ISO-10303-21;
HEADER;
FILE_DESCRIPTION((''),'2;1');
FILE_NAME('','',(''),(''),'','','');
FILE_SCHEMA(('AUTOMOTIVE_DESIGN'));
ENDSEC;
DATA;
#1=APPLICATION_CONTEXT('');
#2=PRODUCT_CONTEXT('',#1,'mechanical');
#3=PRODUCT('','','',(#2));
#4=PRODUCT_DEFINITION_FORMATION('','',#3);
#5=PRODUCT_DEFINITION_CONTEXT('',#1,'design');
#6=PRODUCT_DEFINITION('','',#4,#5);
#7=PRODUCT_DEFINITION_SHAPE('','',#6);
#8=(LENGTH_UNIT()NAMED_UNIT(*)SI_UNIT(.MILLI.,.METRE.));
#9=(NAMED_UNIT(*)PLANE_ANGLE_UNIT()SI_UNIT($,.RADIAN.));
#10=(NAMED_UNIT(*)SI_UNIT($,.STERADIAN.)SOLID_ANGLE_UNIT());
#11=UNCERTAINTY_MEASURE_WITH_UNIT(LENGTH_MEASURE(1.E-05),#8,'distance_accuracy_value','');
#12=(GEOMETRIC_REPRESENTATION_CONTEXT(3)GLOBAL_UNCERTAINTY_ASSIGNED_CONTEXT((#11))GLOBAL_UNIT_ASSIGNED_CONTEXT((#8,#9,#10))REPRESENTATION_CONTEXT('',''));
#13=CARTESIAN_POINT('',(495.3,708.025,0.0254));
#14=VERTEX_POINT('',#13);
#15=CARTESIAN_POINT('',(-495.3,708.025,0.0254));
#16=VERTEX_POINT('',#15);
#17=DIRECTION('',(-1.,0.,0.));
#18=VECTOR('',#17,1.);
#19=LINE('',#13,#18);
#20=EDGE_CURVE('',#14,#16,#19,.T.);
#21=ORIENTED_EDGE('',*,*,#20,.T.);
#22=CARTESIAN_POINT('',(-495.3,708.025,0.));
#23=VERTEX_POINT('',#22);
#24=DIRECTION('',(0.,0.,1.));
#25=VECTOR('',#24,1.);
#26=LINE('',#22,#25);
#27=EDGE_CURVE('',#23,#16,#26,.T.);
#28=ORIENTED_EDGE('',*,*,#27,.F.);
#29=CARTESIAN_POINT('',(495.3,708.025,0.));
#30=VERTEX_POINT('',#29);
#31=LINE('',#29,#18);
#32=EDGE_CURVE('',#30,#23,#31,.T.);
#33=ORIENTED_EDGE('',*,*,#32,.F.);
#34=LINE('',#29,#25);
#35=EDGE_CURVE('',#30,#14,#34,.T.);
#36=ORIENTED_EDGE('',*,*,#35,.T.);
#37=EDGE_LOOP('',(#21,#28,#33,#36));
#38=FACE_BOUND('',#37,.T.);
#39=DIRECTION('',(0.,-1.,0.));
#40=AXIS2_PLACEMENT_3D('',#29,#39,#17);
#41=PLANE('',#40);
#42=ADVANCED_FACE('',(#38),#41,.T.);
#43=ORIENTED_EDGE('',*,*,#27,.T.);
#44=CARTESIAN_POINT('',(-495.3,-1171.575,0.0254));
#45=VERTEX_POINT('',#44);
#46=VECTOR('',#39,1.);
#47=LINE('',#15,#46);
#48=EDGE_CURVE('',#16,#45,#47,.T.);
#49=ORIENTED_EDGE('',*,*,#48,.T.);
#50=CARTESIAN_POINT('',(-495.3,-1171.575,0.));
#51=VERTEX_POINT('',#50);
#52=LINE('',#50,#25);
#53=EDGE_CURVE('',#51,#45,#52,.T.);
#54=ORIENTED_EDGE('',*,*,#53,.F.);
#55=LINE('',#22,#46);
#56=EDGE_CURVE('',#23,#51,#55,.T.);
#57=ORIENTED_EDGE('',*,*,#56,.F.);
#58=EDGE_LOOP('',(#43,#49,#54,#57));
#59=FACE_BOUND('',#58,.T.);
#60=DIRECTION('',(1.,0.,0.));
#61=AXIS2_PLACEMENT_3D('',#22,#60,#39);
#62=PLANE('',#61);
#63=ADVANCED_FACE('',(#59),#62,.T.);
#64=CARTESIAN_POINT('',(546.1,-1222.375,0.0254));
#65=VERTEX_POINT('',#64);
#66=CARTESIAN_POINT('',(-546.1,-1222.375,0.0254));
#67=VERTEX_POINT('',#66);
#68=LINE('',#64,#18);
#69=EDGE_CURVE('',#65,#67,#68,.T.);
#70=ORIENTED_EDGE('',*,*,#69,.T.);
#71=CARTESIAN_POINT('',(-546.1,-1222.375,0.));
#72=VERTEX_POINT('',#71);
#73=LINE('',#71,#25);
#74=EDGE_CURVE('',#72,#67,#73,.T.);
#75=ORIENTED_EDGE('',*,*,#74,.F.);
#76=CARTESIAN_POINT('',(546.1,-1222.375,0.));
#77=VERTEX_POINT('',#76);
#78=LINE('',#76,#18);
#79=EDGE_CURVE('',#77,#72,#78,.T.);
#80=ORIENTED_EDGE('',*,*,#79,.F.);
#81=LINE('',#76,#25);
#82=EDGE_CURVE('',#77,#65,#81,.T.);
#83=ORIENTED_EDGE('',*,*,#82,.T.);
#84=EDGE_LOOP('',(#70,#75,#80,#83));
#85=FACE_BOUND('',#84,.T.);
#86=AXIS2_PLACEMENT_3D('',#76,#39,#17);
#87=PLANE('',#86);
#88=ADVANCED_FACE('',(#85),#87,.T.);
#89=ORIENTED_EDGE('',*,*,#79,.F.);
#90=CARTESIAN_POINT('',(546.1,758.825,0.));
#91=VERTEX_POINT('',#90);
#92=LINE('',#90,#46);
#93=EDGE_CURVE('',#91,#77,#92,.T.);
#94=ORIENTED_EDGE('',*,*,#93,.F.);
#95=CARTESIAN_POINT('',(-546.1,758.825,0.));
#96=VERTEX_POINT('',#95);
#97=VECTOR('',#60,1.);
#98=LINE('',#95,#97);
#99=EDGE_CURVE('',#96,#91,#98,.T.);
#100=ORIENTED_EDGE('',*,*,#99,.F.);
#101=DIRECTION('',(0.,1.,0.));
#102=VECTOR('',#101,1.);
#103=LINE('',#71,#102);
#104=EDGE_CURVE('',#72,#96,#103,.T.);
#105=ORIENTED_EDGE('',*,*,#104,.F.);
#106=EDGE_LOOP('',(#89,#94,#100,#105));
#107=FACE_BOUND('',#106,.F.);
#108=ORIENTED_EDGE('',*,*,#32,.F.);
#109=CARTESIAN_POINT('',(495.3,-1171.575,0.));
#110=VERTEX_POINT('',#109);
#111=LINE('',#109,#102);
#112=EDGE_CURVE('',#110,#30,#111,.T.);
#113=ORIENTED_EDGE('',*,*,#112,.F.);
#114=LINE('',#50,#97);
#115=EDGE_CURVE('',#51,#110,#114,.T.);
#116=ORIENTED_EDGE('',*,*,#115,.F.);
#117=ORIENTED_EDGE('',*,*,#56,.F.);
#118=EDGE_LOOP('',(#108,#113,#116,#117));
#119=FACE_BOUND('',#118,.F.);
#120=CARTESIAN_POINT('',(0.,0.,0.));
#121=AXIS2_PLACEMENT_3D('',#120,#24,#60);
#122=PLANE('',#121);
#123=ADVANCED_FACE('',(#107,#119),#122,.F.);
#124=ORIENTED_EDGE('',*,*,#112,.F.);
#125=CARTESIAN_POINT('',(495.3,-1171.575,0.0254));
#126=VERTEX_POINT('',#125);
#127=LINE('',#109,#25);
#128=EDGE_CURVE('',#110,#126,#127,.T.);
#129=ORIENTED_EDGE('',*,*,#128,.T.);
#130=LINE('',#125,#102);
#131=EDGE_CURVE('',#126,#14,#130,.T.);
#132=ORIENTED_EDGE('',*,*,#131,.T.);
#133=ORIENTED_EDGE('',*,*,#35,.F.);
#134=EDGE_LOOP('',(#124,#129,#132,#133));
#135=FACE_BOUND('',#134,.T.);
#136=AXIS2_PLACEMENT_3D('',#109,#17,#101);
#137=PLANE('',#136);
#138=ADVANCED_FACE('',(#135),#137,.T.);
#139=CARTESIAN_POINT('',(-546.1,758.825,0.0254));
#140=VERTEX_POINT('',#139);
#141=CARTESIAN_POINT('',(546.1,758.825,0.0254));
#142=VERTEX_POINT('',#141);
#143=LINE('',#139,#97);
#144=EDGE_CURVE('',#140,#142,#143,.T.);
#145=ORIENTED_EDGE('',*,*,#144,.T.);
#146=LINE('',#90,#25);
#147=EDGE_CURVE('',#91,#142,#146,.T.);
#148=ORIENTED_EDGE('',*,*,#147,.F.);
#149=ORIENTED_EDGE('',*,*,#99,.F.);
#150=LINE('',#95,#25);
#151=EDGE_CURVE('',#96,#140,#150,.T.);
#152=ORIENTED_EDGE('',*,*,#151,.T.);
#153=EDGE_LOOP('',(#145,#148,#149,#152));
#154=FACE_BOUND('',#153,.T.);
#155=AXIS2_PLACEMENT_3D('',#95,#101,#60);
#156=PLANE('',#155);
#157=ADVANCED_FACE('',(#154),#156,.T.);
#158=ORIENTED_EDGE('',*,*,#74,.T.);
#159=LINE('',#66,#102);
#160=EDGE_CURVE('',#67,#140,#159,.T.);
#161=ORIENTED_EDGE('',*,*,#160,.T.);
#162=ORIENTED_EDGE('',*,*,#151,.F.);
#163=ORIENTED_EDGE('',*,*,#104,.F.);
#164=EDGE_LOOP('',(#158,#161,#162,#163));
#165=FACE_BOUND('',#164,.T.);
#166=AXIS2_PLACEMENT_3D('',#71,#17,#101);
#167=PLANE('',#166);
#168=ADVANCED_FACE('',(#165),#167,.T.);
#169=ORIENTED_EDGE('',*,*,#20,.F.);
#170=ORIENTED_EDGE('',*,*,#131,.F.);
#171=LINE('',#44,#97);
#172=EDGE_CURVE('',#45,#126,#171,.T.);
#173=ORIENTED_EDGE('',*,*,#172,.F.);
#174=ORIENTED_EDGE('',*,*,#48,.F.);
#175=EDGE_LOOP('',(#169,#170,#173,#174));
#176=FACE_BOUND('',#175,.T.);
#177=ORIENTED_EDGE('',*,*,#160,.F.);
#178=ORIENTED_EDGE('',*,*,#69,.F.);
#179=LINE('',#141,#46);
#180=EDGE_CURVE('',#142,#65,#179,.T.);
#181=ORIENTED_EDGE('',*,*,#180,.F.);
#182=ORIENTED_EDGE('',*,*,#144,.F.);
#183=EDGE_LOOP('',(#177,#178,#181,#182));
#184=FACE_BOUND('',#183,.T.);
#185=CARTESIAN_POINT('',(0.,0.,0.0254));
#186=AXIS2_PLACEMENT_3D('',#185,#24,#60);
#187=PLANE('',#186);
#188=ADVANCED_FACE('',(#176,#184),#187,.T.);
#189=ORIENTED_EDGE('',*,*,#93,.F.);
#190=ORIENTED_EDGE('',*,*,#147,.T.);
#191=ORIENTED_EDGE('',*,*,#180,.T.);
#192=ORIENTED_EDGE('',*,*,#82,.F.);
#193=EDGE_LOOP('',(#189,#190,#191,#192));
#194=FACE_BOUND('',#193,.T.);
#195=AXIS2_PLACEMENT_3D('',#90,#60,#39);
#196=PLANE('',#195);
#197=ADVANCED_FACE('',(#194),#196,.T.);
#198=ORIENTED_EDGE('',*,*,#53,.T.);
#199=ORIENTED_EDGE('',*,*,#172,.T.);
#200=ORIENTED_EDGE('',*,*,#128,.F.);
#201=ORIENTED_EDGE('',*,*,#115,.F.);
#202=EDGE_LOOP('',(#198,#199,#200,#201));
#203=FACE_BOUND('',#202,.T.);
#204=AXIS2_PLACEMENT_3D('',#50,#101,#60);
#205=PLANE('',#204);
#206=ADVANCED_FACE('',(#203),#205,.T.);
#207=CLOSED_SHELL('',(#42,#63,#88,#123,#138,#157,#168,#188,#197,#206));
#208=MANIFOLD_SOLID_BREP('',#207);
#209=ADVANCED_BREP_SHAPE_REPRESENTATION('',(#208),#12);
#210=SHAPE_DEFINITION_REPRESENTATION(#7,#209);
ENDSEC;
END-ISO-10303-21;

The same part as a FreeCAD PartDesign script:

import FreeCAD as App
import Part
import Sketcher
from FreeCAD import Vector
Q = App.Units.Quantity

doc = App.newDocument("Part")
body = doc.addObject("PartDesign::Body", "Body")

# Sketch on XY plane
sketch1 = doc.addObject("Sketcher::SketchObject", "Sketch")
body.addObject(sketch1)
sketch1.AttachmentSupport = (doc.XY_Plane, [""])
sketch1.MapMode = "FlatFace"
sketch1.addGeometry([
    Part.LineSegment(Vector(546, 759, 0), Vector(-546, 759, 0)),  # 0
    Part.LineSegment(Vector(-546, 759, 0), Vector(-546, -1222, 0)),  # 1
    Part.LineSegment(Vector(-546, -1222, 0), Vector(546, -1222, 0)),  # 2
    Part.LineSegment(Vector(546, -1222, 0), Vector(546, 759, 0)),  # 3
    Part.LineSegment(Vector(-495, 708, 0), Vector(495, 708, 0)),  # 4
    Part.LineSegment(Vector(495, 708, 0), Vector(495, -1172, 0)),  # 5
    Part.LineSegment(Vector(495, -1172, 0), Vector(-495, -1172, 0)),  # 6
    Part.LineSegment(Vector(-495, -1172, 0), Vector(-495, 708, 0)),  # 7
], False)
sketch1.addConstraint([
    Sketcher.Constraint("Coincident", 0, 2, 1, 1),
    Sketcher.Constraint("Coincident", 1, 2, 2, 1),
    Sketcher.Constraint("Coincident", 2, 2, 3, 1),
    Sketcher.Constraint("Coincident", 3, 2, 0, 1),
    Sketcher.Constraint("Coincident", 4, 2, 5, 1),
    Sketcher.Constraint("Coincident", 5, 2, 6, 1),
    Sketcher.Constraint("Coincident", 6, 2, 7, 1),
    Sketcher.Constraint("Coincident", 7, 2, 4, 1),
    Sketcher.Constraint("Horizontal", 0),
    Sketcher.Constraint("Vertical", 1),
    Sketcher.Constraint("Horizontal", 2),
    Sketcher.Constraint("Vertical", 3),
    Sketcher.Constraint("Horizontal", 4),
    Sketcher.Constraint("Vertical", 5),
    Sketcher.Constraint("Horizontal", 6),
    Sketcher.Constraint("Vertical", 7),
    Sketcher.Constraint("DistanceX", 0, 2, 0, 1, Q("43 in")),
    Sketcher.Constraint("DistanceX", 4, 1, 4, 2, Q("39 in")),
    Sketcher.Constraint("DistanceY", 1, 2, 1, 1, Q("78 in")),
    Sketcher.Constraint("DistanceY", 5, 2, 5, 1, Q("74 in")),
    Sketcher.Constraint("DistanceX", 4, 2, 3, 2, Q("2 in")),
    Sketcher.Constraint("DistanceY", 4, 2, 3, 2, Q("2 in")),
    Sketcher.Constraint("DistanceX", 0, 2, -1, 1, Q("21.5 in")),
    Sketcher.Constraint("DistanceY", -1, 1, 0, 2, Q("29.875 in")),
])
pad1 = doc.addObject("PartDesign::Pad", "Pad")
body.addObject(pad1)
pad1.Profile = sketch1
pad1.Length = Q("0.001 in")

doc.recompute()
